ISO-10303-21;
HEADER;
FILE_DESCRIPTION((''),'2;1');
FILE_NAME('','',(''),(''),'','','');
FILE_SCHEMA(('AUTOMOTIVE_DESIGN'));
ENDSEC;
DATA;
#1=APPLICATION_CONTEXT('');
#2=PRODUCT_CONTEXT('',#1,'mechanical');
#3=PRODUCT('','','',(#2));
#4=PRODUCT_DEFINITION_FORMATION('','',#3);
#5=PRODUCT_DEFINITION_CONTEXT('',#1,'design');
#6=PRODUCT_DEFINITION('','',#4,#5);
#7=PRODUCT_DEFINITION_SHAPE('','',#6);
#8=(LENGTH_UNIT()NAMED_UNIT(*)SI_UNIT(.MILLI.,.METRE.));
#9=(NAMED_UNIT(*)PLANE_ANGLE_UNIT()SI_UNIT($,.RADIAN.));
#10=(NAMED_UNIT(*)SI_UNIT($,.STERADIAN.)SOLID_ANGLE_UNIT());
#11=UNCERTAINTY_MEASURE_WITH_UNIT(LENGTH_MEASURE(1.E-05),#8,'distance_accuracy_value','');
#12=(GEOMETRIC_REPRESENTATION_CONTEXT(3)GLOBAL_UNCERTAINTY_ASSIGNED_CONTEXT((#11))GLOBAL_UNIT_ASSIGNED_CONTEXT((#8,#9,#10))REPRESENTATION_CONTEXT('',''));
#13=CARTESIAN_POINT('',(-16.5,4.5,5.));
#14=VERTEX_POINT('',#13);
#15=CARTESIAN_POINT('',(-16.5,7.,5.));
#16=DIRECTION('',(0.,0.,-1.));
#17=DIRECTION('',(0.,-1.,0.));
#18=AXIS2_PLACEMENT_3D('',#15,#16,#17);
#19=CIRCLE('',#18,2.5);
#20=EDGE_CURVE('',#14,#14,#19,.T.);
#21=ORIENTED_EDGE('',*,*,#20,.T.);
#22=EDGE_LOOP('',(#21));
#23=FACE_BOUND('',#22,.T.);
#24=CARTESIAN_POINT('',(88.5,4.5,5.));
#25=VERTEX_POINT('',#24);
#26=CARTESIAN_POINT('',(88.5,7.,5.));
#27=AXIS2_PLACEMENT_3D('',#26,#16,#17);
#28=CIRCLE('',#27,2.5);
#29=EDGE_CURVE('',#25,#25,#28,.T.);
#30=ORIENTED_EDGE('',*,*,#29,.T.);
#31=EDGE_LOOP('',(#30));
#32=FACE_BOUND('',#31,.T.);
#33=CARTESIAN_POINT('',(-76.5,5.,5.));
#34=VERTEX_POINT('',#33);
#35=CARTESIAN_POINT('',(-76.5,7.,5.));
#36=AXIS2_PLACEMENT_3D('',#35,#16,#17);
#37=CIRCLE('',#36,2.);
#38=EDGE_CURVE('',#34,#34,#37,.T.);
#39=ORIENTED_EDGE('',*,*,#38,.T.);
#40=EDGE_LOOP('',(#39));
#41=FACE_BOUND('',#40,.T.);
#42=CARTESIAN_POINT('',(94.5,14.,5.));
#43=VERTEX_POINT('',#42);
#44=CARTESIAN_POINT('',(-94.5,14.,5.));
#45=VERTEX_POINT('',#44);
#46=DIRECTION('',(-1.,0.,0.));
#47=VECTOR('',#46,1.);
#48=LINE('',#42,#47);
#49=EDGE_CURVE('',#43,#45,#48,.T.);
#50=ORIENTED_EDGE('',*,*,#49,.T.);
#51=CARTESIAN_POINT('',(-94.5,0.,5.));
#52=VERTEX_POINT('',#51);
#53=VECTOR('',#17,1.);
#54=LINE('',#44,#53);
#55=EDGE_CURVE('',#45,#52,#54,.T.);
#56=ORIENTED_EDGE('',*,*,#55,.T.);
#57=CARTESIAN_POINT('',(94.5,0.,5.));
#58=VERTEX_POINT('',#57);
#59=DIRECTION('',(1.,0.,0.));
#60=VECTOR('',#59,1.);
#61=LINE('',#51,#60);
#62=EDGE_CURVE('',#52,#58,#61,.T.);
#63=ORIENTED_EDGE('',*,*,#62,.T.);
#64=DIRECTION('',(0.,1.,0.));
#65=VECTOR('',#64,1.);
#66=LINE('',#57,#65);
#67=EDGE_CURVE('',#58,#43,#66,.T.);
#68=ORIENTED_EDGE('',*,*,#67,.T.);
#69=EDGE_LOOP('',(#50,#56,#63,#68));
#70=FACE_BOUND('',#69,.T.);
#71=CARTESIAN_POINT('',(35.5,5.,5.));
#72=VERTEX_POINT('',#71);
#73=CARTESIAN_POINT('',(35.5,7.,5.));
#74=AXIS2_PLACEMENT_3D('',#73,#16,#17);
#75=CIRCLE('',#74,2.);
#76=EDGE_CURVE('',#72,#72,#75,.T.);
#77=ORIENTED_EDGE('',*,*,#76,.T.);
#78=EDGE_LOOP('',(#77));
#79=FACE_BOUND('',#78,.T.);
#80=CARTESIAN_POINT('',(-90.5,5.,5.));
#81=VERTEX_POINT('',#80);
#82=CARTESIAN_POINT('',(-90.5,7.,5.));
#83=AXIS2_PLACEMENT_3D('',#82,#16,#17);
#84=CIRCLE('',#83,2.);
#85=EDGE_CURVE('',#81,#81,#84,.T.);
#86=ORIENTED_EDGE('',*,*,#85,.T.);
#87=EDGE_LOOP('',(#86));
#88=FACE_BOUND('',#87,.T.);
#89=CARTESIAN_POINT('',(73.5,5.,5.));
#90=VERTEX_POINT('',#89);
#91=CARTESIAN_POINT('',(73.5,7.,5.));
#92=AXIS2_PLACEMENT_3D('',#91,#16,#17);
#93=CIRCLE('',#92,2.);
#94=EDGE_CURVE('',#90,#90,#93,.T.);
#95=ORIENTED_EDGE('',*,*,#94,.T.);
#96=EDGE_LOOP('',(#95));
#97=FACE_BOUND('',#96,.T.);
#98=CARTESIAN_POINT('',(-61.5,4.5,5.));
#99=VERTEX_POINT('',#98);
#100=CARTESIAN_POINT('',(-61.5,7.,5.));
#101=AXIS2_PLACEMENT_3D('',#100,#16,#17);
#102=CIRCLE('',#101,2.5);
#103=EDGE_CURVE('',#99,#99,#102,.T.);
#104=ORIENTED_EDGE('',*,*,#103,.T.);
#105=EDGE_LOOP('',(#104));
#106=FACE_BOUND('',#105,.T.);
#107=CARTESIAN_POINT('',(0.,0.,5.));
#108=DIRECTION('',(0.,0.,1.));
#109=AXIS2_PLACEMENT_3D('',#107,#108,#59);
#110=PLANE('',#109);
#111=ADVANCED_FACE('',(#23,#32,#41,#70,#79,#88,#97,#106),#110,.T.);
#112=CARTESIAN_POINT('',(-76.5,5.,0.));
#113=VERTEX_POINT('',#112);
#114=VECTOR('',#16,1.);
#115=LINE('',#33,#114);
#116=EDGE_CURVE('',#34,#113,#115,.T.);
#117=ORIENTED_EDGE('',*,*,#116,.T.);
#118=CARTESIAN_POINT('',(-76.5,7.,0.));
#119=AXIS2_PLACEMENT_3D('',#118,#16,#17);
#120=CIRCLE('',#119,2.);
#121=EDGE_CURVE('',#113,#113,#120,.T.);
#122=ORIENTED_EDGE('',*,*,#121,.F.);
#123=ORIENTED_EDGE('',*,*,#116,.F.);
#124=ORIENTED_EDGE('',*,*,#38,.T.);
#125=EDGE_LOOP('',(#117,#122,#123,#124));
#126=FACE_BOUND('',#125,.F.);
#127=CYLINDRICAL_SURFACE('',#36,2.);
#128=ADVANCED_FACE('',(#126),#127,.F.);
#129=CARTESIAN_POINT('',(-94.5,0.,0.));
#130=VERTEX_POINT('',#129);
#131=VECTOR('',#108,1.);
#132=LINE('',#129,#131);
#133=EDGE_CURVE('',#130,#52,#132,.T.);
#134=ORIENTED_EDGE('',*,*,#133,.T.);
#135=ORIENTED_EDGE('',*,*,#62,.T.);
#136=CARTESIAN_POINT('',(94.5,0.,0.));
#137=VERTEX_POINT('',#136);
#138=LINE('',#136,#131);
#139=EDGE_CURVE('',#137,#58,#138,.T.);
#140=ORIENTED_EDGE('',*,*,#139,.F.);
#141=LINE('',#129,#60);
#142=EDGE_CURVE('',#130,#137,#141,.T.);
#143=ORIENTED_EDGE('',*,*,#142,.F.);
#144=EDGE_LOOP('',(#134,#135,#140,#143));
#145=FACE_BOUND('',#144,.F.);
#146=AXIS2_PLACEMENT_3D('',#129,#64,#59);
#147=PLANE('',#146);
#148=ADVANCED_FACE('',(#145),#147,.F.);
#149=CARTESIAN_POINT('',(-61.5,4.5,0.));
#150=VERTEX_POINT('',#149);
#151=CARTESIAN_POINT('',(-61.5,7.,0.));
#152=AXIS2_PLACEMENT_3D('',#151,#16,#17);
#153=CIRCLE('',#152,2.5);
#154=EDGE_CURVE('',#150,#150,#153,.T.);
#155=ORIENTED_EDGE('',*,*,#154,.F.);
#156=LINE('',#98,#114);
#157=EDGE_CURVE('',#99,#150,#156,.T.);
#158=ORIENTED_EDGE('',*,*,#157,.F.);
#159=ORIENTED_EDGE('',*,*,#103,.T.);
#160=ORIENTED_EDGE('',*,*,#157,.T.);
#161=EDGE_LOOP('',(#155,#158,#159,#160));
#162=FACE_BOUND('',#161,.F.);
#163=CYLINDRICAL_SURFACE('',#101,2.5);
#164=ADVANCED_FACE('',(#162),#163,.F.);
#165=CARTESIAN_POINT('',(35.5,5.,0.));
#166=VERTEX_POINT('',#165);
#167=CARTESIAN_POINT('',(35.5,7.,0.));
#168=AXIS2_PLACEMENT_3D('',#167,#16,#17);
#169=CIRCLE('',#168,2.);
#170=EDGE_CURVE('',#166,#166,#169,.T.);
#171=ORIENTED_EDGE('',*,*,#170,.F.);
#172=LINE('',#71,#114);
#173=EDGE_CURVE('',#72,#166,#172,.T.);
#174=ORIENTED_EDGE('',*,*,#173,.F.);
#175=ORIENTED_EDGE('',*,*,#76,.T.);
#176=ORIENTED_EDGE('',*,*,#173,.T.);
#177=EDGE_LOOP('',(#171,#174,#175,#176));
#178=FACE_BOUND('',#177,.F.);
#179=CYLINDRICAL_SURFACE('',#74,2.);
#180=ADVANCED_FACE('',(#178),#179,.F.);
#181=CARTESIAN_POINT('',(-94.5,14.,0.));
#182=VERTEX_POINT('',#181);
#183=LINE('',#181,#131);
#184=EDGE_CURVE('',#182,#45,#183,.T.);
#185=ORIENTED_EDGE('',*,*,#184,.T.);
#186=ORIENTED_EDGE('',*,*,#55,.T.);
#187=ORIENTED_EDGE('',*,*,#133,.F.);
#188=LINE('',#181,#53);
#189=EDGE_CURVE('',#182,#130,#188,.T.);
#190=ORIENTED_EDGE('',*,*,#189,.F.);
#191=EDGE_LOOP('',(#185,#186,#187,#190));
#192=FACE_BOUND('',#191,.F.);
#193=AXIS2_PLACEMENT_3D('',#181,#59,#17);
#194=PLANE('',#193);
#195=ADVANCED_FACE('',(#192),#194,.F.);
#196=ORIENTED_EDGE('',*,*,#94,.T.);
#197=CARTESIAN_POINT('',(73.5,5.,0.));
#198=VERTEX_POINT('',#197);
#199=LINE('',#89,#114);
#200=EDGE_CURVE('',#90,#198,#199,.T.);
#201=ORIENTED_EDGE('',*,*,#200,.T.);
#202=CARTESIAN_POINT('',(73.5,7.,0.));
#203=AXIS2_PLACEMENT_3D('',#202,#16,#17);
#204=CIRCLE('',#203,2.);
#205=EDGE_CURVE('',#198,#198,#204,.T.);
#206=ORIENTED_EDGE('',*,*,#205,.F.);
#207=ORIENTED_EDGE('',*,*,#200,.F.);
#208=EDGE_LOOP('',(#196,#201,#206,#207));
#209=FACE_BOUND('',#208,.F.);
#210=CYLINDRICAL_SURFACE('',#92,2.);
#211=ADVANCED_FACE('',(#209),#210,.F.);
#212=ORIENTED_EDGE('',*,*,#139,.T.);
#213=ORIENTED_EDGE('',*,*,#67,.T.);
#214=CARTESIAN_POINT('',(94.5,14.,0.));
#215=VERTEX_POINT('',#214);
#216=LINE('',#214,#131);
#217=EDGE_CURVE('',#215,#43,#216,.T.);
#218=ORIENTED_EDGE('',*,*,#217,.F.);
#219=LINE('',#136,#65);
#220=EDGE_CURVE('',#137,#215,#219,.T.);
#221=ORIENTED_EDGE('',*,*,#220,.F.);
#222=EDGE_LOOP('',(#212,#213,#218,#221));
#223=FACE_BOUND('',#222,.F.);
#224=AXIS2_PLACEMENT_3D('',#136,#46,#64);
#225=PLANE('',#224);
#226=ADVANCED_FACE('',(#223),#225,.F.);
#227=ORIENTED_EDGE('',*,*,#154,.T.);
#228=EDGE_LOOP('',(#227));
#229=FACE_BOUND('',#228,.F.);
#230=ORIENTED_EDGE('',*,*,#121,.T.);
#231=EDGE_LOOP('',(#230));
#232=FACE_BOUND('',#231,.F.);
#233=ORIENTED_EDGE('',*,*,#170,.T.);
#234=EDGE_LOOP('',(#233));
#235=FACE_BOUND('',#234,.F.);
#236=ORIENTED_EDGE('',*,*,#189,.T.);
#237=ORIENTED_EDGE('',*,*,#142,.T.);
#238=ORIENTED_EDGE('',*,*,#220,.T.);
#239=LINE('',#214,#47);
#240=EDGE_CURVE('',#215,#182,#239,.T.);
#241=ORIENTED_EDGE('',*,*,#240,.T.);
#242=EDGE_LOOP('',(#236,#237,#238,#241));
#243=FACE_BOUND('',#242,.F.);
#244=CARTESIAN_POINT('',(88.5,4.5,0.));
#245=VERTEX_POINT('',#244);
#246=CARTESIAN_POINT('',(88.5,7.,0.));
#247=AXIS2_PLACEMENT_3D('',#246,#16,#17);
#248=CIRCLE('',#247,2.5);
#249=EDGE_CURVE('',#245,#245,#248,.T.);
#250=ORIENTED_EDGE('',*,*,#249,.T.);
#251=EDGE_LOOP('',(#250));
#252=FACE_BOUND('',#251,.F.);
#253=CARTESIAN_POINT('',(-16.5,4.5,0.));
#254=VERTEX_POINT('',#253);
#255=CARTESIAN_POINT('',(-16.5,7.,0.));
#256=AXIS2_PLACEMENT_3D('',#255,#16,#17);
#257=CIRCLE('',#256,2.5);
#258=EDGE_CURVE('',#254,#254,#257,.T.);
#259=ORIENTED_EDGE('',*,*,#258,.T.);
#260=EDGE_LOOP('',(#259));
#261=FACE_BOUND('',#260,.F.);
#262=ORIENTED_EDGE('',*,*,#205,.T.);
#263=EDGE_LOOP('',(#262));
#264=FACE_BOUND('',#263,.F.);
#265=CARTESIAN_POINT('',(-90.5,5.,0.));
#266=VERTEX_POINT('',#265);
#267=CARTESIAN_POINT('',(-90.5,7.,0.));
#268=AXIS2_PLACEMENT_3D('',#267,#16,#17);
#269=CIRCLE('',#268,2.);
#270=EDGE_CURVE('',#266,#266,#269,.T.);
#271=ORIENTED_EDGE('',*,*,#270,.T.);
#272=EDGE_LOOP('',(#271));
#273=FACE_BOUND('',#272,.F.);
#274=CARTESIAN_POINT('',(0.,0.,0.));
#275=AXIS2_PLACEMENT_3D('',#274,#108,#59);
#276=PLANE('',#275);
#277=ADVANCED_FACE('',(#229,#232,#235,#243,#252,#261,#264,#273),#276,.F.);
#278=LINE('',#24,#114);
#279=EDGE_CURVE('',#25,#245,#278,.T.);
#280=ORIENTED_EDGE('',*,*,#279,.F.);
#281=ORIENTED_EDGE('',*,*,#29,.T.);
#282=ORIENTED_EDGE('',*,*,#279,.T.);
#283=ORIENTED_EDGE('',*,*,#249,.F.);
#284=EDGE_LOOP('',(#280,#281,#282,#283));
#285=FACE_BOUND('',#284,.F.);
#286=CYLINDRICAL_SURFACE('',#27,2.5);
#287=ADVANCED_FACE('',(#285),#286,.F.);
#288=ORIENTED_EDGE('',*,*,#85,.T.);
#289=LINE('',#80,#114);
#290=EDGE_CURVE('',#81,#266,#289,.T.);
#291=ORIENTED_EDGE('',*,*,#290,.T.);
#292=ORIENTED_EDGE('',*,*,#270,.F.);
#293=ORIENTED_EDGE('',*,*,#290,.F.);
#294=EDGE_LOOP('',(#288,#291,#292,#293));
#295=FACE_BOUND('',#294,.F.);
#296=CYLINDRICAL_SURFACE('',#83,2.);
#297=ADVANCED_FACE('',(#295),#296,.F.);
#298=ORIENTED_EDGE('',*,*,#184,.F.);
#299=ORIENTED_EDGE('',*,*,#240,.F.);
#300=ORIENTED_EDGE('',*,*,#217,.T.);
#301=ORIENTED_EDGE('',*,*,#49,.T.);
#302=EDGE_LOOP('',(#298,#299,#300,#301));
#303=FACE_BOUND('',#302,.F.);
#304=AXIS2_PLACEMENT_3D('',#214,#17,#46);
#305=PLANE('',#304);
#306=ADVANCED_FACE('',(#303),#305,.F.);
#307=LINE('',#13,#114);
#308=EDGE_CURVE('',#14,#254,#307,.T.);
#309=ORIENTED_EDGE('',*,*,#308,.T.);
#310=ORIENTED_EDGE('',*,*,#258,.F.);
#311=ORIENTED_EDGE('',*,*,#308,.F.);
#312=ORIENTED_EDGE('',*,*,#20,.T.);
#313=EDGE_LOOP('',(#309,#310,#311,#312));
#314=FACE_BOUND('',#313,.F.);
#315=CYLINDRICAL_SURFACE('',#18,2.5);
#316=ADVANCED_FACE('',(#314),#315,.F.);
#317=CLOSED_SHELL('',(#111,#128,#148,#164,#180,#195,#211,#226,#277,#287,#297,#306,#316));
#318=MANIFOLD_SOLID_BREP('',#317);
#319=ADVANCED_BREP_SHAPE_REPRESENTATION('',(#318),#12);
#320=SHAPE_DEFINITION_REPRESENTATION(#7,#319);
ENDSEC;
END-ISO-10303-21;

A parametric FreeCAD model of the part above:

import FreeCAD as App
import Part
import Sketcher

doc = App.newDocument("Part")
body = doc.addObject("PartDesign::Body", "Body")

# Sketch on XY plane
sketch1 = body.newObject("Sketcher::SketchObject", "Sketch")
sketch1.AttachmentSupport = (doc.getObject("XY_Plane"), [""])
sketch1.MapMode = "FlatFace"
sketch1.addGeometry(Part.LineSegment(App.Vector(-94.5, 14, 0), App.Vector(-94.5, 0, 0)), False)
sketch1.addGeometry(Part.LineSegment(App.Vector(-94.5, 0, 0), App.Vector(94.5, 0, 0)), False)
sketch1.addGeometry(Part.LineSegment(App.Vector(94.5, 0, 0), App.Vector(94.5, 14, 0)), False)
sketch1.addGeometry(Part.LineSegment(App.Vector(94.5, 14, 0), App.Vector(-94.5, 14, 0)), False)
sketch1.addConstraint(Sketcher.Constraint("Coincident", 0, 2, 1, 1))
sketch1.addConstraint(Sketcher.Constraint("Coincident", 1, 2, 2, 1))
sketch1.addConstraint(Sketcher.Constraint("Coincident", 2, 2, 3, 1))
sketch1.addConstraint(Sketcher.Constraint("Coincident", 3, 2, 0, 1))
sketch1.addConstraint(Sketcher.Constraint("Vertical", 0))
sketch1.addConstraint(Sketcher.Constraint("Horizontal", 1))
sketch1.addConstraint(Sketcher.Constraint("Vertical", 2))
sketch1.addConstraint(Sketcher.Constraint("Horizontal", 3))
sketch1.addConstraint(Sketcher.Constraint("Symmetric", 0, 2, 1, 2, -1, 1))
sketch1.addConstraint(Sketcher.Constraint("DistanceX", 1, 1, 1, 2, 189.0))
sketch1.addConstraint(Sketcher.Constraint("DistanceY", 0, 2, 0, 1, 14.0))
pad1 = body.newObject("PartDesign::Pad", "Pad")
pad1.Profile = sketch1
pad1.Length = 5

# Sketch on XY plane
sketch2 = body.newObject("Sketcher::SketchObject", "Sketch001")
sketch2.AttachmentSupport = (doc.getObject("XY_Plane"), [""])
sketch2.MapMode = "FlatFace"
sketch2.AttachmentOffset = App.Placement(App.Vector(0, 0, 5), App.Rotation())
sketch2.addGeometry(Part.Circle(App.Vector(-61.5, 7, 0), App.Vector(0, 0, 1), 2.5), False)
sketch2.addGeometry(Part.Circle(App.Vector(-16.5, 7, 0), App.Vector(0, 0, 1), 2.5), False)
sketch2.addGeometry(Part.Circle(App.Vector(88.5, 7, 0), App.Vector(0, 0, 1), 2.5), False)
sketch2.addConstraint(Sketcher.Constraint("Equal", 0, 1))
sketch2.addConstraint(Sketcher.Constraint("Equal", 1, 2))
sketch2.addConstraint(Sketcher.Constraint("Horizontal", 0, 3, 1, 3))
sketch2.addConstraint(Sketcher.Constraint("Horizontal", 1, 3, 2, 3))
sketch2.addConstraint(Sketcher.Constraint("Diameter", 0, 5.0))
sketch2.addConstraint(Sketcher.Constraint("DistanceY", -1, 1, 0, 3, 7.0))
sketch2.addConstraint(Sketcher.Constraint("DistanceX", 0, 3, 1, 3, 45.0))
sketch2.addConstraint(Sketcher.Constraint("DistanceX", 1, 3, 2, 3, 105.0))
sketch2.addConstraint(Sketcher.Constraint("DistanceX", 0, 3, -1, 1, 61.5))
doc.recompute()
hole = body.newObject("PartDesign::Hole", "Hole")
hole.Profile = sketch2
hole.ThreadType = "None"
hole.Diameter = 5
hole.DepthType = "Dimension"
hole.Depth = 5
hole.DrillPoint = "Flat"

# Sketch on XY plane
sketch3 = body.newObject("Sketcher::SketchObject", "Sketch002")
sketch3.AttachmentSupport = (doc.getObject("XY_Plane"), [""])
sketch3.MapMode = "FlatFace"
sketch3.AttachmentOffset = App.Placement(App.Vector(0, 0, 5), App.Rotation())
sketch3.addGeometry(Part.Circle(App.Vector(73.5, 7, 0), App.Vector(0, 0, 1), 2), False)
sketch3.addGeometry(Part.Circle(App.Vector(35.5, 7, 0), App.Vector(0, 0, 1), 2), False)
sketch3.addGeometry(Part.Circle(App.Vector(-76.5, 7, 0), App.Vector(0, 0, 1), 2), False)
sketch3.addGeometry(Part.Circle(App.Vector(-90.5, 7, 0), App.Vector(0, 0, 1), 2), False)
sketch3.addConstraint(Sketcher.Constraint("Equal", 0, 1))
sketch3.addConstraint(Sketcher.Constraint("Equal", 1, 2))
sketch3.addConstraint(Sketcher.Constraint("Equal", 2, 3))
sketch3.addConstraint(Sketcher.Constraint("Horizontal", 0, 3, 1, 3))
sketch3.addConstraint(Sketcher.Constraint("Horizontal", 1, 3, 2, 3))
sketch3.addConstraint(Sketcher.Constraint("Horizontal", 2, 3, 3, 3))
sketch3.addConstraint(Sketcher.Constraint("Diameter", 0, 4.0))
sketch3.addConstraint(Sketcher.Constraint("DistanceY", -1, 1, 0, 3, 7.0))
sketch3.addConstraint(Sketcher.Constraint("DistanceX", 1, 3, 0, 3, 38.0))
sketch3.addConstraint(Sketcher.Constraint("DistanceX", 2, 3, 1, 3, 112.0))
sketch3.addConstraint(Sketcher.Constraint("DistanceX", 3, 3, 2, 3, 14.0))
sketch3.addConstraint(Sketcher.Constraint("DistanceX", -1, 1, 0, 3, 73.5))
doc.recompute()
hole2 = body.newObject("PartDesign::Hole", "Hole001")
hole2.Profile = sketch3
hole2.ThreadType = "None"
hole2.Diameter = 4
hole2.DepthType = "Dimension"
hole2.Depth = 5
hole2.DrillPoint = "Flat"

doc.recompute()
